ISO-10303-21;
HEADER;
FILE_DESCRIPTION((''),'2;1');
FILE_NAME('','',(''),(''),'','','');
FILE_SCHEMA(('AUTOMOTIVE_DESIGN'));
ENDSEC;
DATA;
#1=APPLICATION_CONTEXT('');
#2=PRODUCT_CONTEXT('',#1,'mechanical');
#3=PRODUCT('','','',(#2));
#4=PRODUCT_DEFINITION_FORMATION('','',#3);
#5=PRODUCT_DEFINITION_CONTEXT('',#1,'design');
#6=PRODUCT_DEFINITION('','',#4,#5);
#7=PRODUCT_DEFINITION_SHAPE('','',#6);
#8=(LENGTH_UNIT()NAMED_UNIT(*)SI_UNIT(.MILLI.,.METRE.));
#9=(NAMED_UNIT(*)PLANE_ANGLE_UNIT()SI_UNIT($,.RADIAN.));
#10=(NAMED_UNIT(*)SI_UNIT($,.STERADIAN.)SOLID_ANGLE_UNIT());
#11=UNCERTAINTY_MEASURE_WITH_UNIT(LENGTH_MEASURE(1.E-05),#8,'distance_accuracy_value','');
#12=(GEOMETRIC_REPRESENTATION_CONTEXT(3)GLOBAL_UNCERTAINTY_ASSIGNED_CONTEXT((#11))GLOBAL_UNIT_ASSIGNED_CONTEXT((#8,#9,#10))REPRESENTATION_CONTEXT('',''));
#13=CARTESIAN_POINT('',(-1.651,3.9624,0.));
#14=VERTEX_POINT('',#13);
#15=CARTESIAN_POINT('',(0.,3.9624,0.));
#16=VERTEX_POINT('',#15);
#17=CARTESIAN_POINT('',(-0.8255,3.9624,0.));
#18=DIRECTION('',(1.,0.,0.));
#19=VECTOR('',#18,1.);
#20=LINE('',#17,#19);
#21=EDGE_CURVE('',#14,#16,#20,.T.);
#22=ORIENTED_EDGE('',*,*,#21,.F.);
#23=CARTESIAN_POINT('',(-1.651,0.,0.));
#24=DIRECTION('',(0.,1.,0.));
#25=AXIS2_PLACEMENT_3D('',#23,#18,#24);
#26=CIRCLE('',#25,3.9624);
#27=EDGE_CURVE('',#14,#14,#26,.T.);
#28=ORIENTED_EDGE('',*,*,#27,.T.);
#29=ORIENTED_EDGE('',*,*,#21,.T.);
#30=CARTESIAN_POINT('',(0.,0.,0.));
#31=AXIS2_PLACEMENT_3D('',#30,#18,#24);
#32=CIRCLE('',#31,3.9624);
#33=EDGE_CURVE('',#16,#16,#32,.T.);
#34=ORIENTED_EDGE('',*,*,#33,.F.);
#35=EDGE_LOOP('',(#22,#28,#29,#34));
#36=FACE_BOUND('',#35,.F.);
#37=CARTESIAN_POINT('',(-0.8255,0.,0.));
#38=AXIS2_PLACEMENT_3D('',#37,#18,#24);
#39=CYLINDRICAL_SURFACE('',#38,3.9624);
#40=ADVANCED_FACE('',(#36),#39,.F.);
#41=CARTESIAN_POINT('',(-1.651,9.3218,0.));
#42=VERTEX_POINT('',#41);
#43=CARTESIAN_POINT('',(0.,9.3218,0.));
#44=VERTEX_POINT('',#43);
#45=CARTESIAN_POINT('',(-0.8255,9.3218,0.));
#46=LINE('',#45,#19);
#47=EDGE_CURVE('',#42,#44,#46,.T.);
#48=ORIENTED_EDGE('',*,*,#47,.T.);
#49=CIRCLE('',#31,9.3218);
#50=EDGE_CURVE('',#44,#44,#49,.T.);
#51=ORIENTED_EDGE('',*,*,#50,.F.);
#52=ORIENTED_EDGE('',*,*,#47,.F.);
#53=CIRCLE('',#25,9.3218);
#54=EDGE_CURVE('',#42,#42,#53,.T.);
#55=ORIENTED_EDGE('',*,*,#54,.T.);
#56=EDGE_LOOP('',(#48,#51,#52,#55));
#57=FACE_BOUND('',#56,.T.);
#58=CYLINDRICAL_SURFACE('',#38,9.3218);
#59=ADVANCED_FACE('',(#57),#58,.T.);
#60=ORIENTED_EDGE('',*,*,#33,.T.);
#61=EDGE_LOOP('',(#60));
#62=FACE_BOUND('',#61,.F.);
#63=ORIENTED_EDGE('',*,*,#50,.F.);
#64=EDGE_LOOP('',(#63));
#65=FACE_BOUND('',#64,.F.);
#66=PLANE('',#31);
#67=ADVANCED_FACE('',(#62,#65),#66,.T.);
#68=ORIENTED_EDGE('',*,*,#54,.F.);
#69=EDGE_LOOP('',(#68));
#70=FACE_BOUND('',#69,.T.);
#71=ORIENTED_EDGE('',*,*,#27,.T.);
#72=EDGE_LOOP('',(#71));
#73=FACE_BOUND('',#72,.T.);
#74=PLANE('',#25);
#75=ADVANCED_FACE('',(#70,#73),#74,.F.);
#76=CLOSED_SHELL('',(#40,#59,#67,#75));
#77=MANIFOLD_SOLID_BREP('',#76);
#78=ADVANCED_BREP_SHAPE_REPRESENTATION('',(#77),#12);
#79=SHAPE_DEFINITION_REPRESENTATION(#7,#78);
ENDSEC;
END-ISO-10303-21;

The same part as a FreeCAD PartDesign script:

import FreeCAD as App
import Part
import Sketcher
from FreeCAD import Vector
Q = App.Units.Quantity


def add_polygon(sketch, points):
    """Adds a closed chain of lines whose ends are joined by coincident constraints."""
    first, n = sketch.GeometryCount, len(points)
    for a, b in zip(points, points[1:] + points[:1]):
        sketch.addGeometry(Part.LineSegment(App.Vector(*a, 0), App.Vector(*b, 0)), False)
    for i in range(n):
        sketch.addConstraint(Sketcher.Constraint("Coincident", first + i, 2, first + (i + 1) % n, 1))

doc = App.newDocument("Part")
body = doc.addObject("PartDesign::Body", "Body")

# Sketch on XY plane
sketch1 = doc.addObject("Sketcher::SketchObject", "Sketch")
body.addObject(sketch1)
sketch1.AttachmentSupport = (doc.XY_Plane, [""])
sketch1.MapMode = "FlatFace"
add_polygon(sketch1, [(-1.651, 9.3218), (-1.651, 3.9624), (0, 3.9624), (0, 9.3218)])  # lines 0-3
sketch1.addConstraint([
    Sketcher.Constraint("Vertical", 0),
    Sketcher.Constraint("Horizontal", 1),
    Sketcher.Constraint("Vertical", 2),
    Sketcher.Constraint("Horizontal", 3),
    Sketcher.Constraint("PointOnObject", 1, 2, -2),
    Sketcher.Constraint("DistanceX", 1, 1, 1, 2, Q("0.065 in")),
    Sketcher.Constraint("DistanceY", 0, 2, 0, 1, Q("0.211 in")),
    Sketcher.Constraint("DistanceY", -1, 1, 0, 2, Q("0.156 in")),
])
revolution = doc.addObject("PartDesign::Revolution", "Revolution")
body.addObject(revolution)
revolution.Profile = sketch1
revolution.ReferenceAxis = (sketch1, ["H_Axis"])
revolution.Angle = 360

doc.recompute()
